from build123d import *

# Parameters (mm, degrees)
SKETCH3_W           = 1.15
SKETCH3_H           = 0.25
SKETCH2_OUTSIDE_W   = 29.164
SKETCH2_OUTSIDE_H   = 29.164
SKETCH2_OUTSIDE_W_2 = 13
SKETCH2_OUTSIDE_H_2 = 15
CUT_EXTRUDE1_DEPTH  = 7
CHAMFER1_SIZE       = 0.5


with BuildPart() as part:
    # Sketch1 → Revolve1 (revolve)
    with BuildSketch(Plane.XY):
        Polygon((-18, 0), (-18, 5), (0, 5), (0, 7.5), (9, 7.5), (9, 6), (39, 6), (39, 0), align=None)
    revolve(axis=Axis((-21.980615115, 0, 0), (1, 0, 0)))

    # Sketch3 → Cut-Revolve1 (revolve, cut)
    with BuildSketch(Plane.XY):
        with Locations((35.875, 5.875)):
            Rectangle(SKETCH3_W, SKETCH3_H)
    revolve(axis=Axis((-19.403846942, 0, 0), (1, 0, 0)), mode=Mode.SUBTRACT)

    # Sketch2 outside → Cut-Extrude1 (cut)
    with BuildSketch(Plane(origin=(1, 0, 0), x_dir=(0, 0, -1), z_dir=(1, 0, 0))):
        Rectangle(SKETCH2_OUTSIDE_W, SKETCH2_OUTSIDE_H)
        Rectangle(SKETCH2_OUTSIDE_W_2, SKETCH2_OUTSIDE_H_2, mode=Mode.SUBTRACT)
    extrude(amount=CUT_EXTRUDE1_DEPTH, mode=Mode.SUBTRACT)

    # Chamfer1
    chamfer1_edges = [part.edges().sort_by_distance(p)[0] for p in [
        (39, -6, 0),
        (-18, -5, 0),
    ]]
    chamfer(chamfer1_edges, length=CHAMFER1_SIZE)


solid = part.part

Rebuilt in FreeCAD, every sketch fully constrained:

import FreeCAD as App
import Part
import Sketcher

V = App.Vector


def edges_at(feature, points):
    """Names of the edges that pass closest to the given points."""
    edges = feature.Shape.Edges
    near = lambda p: min(range(len(edges)), key=lambda i: edges[i].distToShape(Part.Vertex(*p))[0])
    return sorted({f"Edge{near(p) + 1}" for p in points})


def add_polygon(sketch, points):
    """Adds a closed chain of lines whose ends are joined by coincident constraints."""
    first, n = sketch.GeometryCount, len(points)
    for a, b in zip(points, points[1:] + points[:1]):
        sketch.addGeometry(Part.LineSegment(App.Vector(*a, 0), App.Vector(*b, 0)), False)
    for i in range(n):
        sketch.addConstraint(Sketcher.Constraint("Coincident", first + i, 2, first + (i + 1) % n, 1))

doc = App.newDocument("Part")
body = doc.addObject("PartDesign::Body", "Body")

sketch1 = body.newObject("Sketcher::SketchObject", "Sketch")
sketch1.AttachmentSupport = (doc.getObject("XY_Plane"), [""])
sketch1.MapMode = "FlatFace"
add_polygon(sketch1, [(-18, 5), (-18, 0), (39, 0), (39, 6), (9, 6), (9, 7.5), (0, 7.5), (0, 5)])
sketch1.addConstraint(Sketcher.Constraint("Vertical", 0))
sketch1.addConstraint(Sketcher.Constraint("Horizontal", 1))
sketch1.addConstraint(Sketcher.Constraint("Vertical", 2))
sketch1.addConstraint(Sketcher.Constraint("Horizontal", 3))
sketch1.addConstraint(Sketcher.Constraint("Vertical", 4))
sketch1.addConstraint(Sketcher.Constraint("Horizontal", 5))
sketch1.addConstraint(Sketcher.Constraint("Vertical", 6))
sketch1.addConstraint(Sketcher.Constraint("Horizontal", 7))
sketch1.addConstraint(Sketcher.Constraint("PointOnObject", 0, 2, -1))
sketch1.addConstraint(Sketcher.Constraint("PointOnObject", 5, 2, -2))
sketch1.addConstraint(Sketcher.Constraint("DistanceX", 1, 1, 1, 2, 57.0))
sketch1.addConstraint(Sketcher.Constraint("DistanceX", 3, 2, 3, 1, 30.0))
sketch1.addConstraint(Sketcher.Constraint("DistanceX", 5, 2, 5, 1, 9.0))
sketch1.addConstraint(Sketcher.Constraint("DistanceY", 0, 2, 0, 1, 5.0))
sketch1.addConstraint(Sketcher.Constraint("DistanceY", 2, 1, 2, 2, 6.0))
sketch1.addConstraint(Sketcher.Constraint("DistanceY", 4, 1, 4, 2, 1.5))
revolution = body.newObject("PartDesign::Revolution", "Revolution")
revolution.Profile = sketch1
revolution.ReferenceAxis = (sketch1, ["H_Axis"])
revolution.Angle = 360

sketch2 = body.newObject("Sketcher::SketchObject", "Sketch001")
sketch2.AttachmentSupport = (doc.getObject("XY_Plane"), [""])
sketch2.MapMode = "FlatFace"
add_polygon(sketch2, [(35.3, 6), (35.3, 5.75), (36.45, 5.75), (36.45, 6)])
sketch2.addConstraint(Sketcher.Constraint("Vertical", 0))
sketch2.addConstraint(Sketcher.Constraint("Horizontal", 1))
sketch2.addConstraint(Sketcher.Constraint("Vertical", 2))
sketch2.addConstraint(Sketcher.Constraint("Horizontal", 3))
sketch2.addConstraint(Sketcher.Constraint("DistanceY", -1, 1, 2, 2, 6.0))
sketch2.addConstraint(Sketcher.Constraint("DistanceX", 1, 1, 1, 2, 1.15))
sketch2.addConstraint(Sketcher.Constraint("DistanceY", 0, 2, 0, 1, 0.25))
sketch2.addConstraint(Sketcher.Constraint("DistanceX", -1, 1, 0, 2, 35.3))
groove = body.newObject("PartDesign::Groove", "Groove")
groove.Profile = sketch2
groove.ReferenceAxis = (sketch2, ["H_Axis"])
groove.Angle = 360

sketch3 = body.newObject("Sketcher::SketchObject", "Sketch002")
sketch3.AttachmentSupport = (doc.getObject("YZ_Plane"), [""])
sketch3.MapMode = "FlatFace"
sketch3.AttachmentOffset = App.Placement(V(0, 0, 1), App.Rotation())
add_polygon(sketch3, [(15, 15), (-15, 15), (-15, -15), (15, -15)])
add_polygon(sketch3, [(-8, -6), (-8, 6), (8, 6), (8, -6)])
sketch3.addConstraint(Sketcher.Constraint("Horizontal", 0))
sketch3.addConstraint(Sketcher.Constraint("Vertical", 1))
sketch3.addConstraint(Sketcher.Constraint("Horizontal", 2))
sketch3.addConstraint(Sketcher.Constraint("Vertical", 3))
sketch3.addConstraint(Sketcher.Constraint("Vertical", 4))
sketch3.addConstraint(Sketcher.Constraint("Horizontal", 5))
sketch3.addConstraint(Sketcher.Constraint("Vertical", 6))
sketch3.addConstraint(Sketcher.Constraint("Horizontal", 7))
sketch3.addConstraint(Sketcher.Constraint("Symmetric", 0, 2, 2, 2, -1, 1))
sketch3.addConstraint(Sketcher.Constraint("Symmetric", 4, 2, 6, 2, -1, 1))
sketch3.addConstraint(Sketcher.Constraint("Equal", 2, 1))
sketch3.addConstraint(Sketcher.Constraint("DistanceX", 5, 1, 5, 2, 15.0))
sketch3.addConstraint(Sketcher.Constraint("DistanceY", 4, 1, 4, 2, 13.0))
sketch3.addConstraint(Sketcher.Constraint("DistanceX", 0, 2, 0, 1, 29.164))
pocket1 = body.newObject("PartDesign::Pocket", "Pocket")
pocket1.Profile = sketch3
pocket1.Length = 7
pocket1.Reversed = True
doc.recompute()

chamfer = body.newObject("PartDesign::Chamfer", "Chamfer")
chamfer.Base = (pocket1, edges_at(pocket1, [(39, -6, 0), (-18, -5, 0)]))
chamfer.Size = 0.5

doc.recompute()
